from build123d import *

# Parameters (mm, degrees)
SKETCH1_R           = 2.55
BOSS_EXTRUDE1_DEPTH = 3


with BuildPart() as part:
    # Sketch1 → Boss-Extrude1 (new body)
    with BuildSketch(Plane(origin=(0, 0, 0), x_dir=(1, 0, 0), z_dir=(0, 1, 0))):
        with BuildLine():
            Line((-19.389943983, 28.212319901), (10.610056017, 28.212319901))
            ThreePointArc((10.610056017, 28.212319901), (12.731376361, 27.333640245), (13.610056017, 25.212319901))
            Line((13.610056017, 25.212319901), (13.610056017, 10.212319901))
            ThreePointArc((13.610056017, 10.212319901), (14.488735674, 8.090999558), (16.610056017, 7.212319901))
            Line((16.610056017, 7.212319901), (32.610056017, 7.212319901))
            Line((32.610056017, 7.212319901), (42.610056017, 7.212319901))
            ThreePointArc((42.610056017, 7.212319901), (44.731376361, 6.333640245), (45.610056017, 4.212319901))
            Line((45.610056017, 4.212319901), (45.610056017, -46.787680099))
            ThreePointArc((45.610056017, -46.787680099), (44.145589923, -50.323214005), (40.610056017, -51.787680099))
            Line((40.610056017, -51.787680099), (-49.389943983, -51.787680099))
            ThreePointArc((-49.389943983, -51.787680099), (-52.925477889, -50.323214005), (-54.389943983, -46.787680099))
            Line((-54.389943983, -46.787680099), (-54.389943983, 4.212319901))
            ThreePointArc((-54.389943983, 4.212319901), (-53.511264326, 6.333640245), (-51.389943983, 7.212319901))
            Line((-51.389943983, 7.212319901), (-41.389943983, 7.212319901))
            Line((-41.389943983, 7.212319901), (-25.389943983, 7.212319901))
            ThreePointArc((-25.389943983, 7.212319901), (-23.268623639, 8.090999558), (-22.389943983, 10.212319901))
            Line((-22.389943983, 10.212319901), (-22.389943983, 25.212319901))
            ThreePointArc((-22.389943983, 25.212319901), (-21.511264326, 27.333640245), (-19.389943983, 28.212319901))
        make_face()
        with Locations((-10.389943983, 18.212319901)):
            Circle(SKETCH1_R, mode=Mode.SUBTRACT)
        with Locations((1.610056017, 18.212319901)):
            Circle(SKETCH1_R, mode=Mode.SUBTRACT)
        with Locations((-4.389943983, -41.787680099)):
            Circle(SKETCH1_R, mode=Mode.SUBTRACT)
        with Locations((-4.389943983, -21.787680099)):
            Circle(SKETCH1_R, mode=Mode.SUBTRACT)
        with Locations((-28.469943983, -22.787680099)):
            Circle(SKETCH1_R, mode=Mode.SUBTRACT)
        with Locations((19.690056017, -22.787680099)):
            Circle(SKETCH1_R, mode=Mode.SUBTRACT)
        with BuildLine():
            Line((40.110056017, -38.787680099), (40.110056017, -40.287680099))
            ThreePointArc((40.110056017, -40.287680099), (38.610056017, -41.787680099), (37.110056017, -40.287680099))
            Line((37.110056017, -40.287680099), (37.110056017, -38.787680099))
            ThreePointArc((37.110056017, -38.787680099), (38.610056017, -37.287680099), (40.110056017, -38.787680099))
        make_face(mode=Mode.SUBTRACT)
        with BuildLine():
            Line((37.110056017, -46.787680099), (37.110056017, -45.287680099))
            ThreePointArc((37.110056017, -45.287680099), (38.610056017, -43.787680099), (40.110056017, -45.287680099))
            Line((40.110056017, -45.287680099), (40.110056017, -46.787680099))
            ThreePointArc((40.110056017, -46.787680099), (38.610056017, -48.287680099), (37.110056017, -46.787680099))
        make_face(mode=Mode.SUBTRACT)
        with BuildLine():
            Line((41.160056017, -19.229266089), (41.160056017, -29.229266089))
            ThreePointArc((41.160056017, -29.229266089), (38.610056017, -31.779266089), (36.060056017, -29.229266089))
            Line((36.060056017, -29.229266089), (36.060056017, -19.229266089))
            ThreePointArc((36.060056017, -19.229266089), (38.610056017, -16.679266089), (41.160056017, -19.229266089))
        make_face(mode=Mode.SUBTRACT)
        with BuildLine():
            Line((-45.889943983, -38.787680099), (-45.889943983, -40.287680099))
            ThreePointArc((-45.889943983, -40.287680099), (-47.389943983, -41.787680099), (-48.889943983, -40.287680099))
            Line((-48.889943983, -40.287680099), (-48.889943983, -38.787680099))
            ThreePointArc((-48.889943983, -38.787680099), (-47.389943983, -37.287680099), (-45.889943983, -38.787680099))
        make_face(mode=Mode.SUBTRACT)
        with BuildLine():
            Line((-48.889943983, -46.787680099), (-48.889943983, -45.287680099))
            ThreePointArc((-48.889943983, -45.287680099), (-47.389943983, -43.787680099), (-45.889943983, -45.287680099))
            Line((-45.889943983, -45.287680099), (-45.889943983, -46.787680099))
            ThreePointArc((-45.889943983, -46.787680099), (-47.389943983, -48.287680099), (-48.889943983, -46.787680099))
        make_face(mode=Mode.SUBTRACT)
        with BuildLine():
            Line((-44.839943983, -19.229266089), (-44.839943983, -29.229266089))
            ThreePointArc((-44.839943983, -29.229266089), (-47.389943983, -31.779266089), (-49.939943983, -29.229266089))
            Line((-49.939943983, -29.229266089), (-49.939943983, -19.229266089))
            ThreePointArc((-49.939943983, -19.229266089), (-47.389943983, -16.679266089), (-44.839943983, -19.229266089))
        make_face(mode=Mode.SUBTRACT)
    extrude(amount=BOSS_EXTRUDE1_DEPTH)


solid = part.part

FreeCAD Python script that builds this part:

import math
import FreeCAD as App
import Part
import Sketcher
from FreeCAD import Vector

doc = App.newDocument("Part")
body = doc.addObject("PartDesign::Body", "Body")

# Sketch on XZ plane
sketch1 = body.newObject("Sketcher::SketchObject", "Sketch")
sketch1.AttachmentSupport = (doc.getObject("XZ_Plane"), [""])
sketch1.MapMode = "FlatFace"
sketch1.addGeometry(Part.LineSegment(Vector(10.6, -28.2, 0), Vector(-19.4, -28.2, 0)), False)
sketch1.addGeometry(Part.ArcOfCircle(Part.Circle(Vector(-19.4, -25.2, 0), Vector(0, 0, 1), 3), math.radians(180), math.radians(270)), False)
sketch1.addGeometry(Part.LineSegment(Vector(-22.4, -25.2, 0), Vector(-22.4, -10.2, 0)), False)
sketch1.addGeometry(Part.ArcOfCircle(Part.Circle(Vector(-25.4, -10.2, 0), Vector(0, 0, 1), 3), math.radians(0), math.radians(90)), False)
sketch1.addGeometry(Part.LineSegment(Vector(-25.4, -7.2, 0), Vector(-51.4, -7.2, 0)), False)
sketch1.addGeometry(Part.ArcOfCircle(Part.Circle(Vector(-51.4, -4.2, 0), Vector(0, 0, 1), 3), math.radians(180), math.radians(270)), False)
sketch1.addGeometry(Part.LineSegment(Vector(-54.4, -4.2, 0), Vector(-54.4, 46.8, 0)), False)
sketch1.addGeometry(Part.ArcOfCircle(Part.Circle(Vector(-49.4, 46.8, 0), Vector(0, 0, 1), 5), math.radians(90), math.radians(180)), False)
sketch1.addGeometry(Part.LineSegment(Vector(-49.4, 51.8, 0), Vector(40.6, 51.8, 0)), False)
sketch1.addGeometry(Part.ArcOfCircle(Part.Circle(Vector(40.6, 46.8, 0), Vector(0, 0, 1), 5), math.radians(0), math.radians(90)), False)
sketch1.addGeometry(Part.LineSegment(Vector(45.6, 46.8, 0), Vector(45.6, -4.2, 0)), False)
sketch1.addGeometry(Part.ArcOfCircle(Part.Circle(Vector(42.6, -4.2, 0), Vector(0, 0, 1), 3), math.radians(-90), math.radians(0)), False)
sketch1.addGeometry(Part.LineSegment(Vector(42.6, -7.2, 0), Vector(16.6, -7.2, 0)), False)
sketch1.addGeometry(Part.ArcOfCircle(Part.Circle(Vector(16.6, -10.2, 0), Vector(0, 0, 1), 3), math.radians(90), math.radians(180)), False)
sketch1.addGeometry(Part.LineSegment(Vector(13.6, -10.2, 0), Vector(13.6, -25.2, 0)), False)
sketch1.addGeometry(Part.ArcOfCircle(Part.Circle(Vector(10.6, -25.2, 0), Vector(0, 0, 1), 3), math.radians(-90), math.radians(0)), False)
sketch1.addGeometry(Part.LineSegment(Vector(37.1, 46.8, 0), Vector(37.1, 45.3, 0)), False)
sketch1.addGeometry(Part.ArcOfCircle(Part.Circle(Vector(38.6, 45.3, 0), Vector(0, 0, 1), 1.5), math.radians(180), math.radians(360)), False)
sketch1.addGeometry(Part.LineSegment(Vector(40.1, 45.3, 0), Vector(40.1, 46.8, 0)), False)
sketch1.addGeometry(Part.ArcOfCircle(Part.Circle(Vector(38.6, 46.8, 0), Vector(0, 0, 1), 1.5), math.radians(0), math.radians(180)), False)
sketch1.addGeometry(Part.LineSegment(Vector(40.1, 38.8, 0), Vector(40.1, 40.3, 0)), False)
sketch1.addGeometry(Part.ArcOfCircle(Part.Circle(Vector(38.6, 40.3, 0), Vector(0, 0, 1), 1.5), math.radians(0), math.radians(180)), False)
sketch1.addGeometry(Part.LineSegment(Vector(37.1, 40.3, 0), Vector(37.1, 38.8, 0)), False)
sketch1.addGeometry(Part.ArcOfCircle(Part.Circle(Vector(38.6, 38.8, 0), Vector(0, 0, 1), 1.5), math.radians(180), math.radians(360)), False)
sketch1.addGeometry(Part.LineSegment(Vector(41.2, 19.2, 0), Vector(41.2, 29.2, 0)), False)
sketch1.addGeometry(Part.ArcOfCircle(Part.Circle(Vector(38.6, 29.2, 0), Vector(0, 0, 1), 2.5), math.radians(0), math.radians(180)), False)
sketch1.addGeometry(Part.LineSegment(Vector(36.1, 29.2, 0), Vector(36.1, 19.2, 0)), False)
sketch1.addGeometry(Part.ArcOfCircle(Part.Circle(Vector(38.6, 19.2, 0), Vector(0, 0, 1), 2.5), math.radians(180), math.radians(360)), False)
sketch1.addGeometry(Part.Circle(Vector(19.7, 22.8, 0), Vector(0, 0, 1), 2.5), False)
sketch1.addGeometry(Part.Circle(Vector(-4.4, 41.8, 0), Vector(0, 0, 1), 2.5), False)
sketch1.addGeometry(Part.LineSegment(Vector(-48.9, 46.8, 0), Vector(-48.9, 45.3, 0)), False)
sketch1.addGeometry(Part.ArcOfCircle(Part.Circle(Vector(-47.4, 45.3, 0), Vector(0, 0, 1), 1.5), math.radians(180), math.radians(360)), False)
sketch1.addGeometry(Part.LineSegment(Vector(-45.9, 45.3, 0), Vector(-45.9, 46.8, 0)), False)
sketch1.addGeometry(Part.ArcOfCircle(Part.Circle(Vector(-47.4, 46.8, 0), Vector(0, 0, 1), 1.5), math.radians(0), math.radians(180)), False)
sketch1.addGeometry(Part.LineSegment(Vector(-45.9, 38.8, 0), Vector(-45.9, 40.3, 0)), False)
sketch1.addGeometry(Part.ArcOfCircle(Part.Circle(Vector(-47.4, 40.3, 0), Vector(0, 0, 1), 1.5), math.radians(0), math.radians(180)), False)
sketch1.addGeometry(Part.LineSegment(Vector(-48.9, 40.3, 0), Vector(-48.9, 38.8, 0)), False)
sketch1.addGeometry(Part.ArcOfCircle(Part.Circle(Vector(-47.4, 38.8, 0), Vector(0, 0, 1), 1.5), math.radians(180), math.radians(360)), False)
sketch1.addGeometry(Part.Circle(Vector(-4.4, 21.8, 0), Vector(0, 0, 1), 2.5), False)
sketch1.addGeometry(Part.Circle(Vector(-28.5, 22.8, 0), Vector(0, 0, 1), 2.5), False)
sketch1.addGeometry(Part.LineSegment(Vector(-44.8, 19.2, 0), Vector(-44.8, 29.2, 0)), False)
sketch1.addGeometry(Part.ArcOfCircle(Part.Circle(Vector(-47.4, 29.2, 0), Vector(0, 0, 1), 2.5), math.radians(0), math.radians(180)), False)
sketch1.addGeometry(Part.LineSegment(Vector(-49.9, 29.2, 0), Vector(-49.9, 19.2, 0)), False)
sketch1.addGeometry(Part.ArcOfCircle(Part.Circle(Vector(-47.4, 19.2, 0), Vector(0, 0, 1), 2.5), math.radians(180), math.radians(360)), False)
sketch1.addGeometry(Part.Circle(Vector(1.6, -18.2, 0), Vector(0, 0, 1), 2.5), False)
sketch1.addGeometry(Part.Circle(Vector(-10.4, -18.2, 0), Vector(0, 0, 1), 2.5), False)
sketch1.addConstraint(Sketcher.Constraint("Tangent", 0, 2, 1, 2))
sketch1.addConstraint(Sketcher.Constraint("Tangent", 1, 1, 2, 1))
sketch1.addConstraint(Sketcher.Constraint("Tangent", 2, 2, 3, 1))
sketch1.addConstraint(Sketcher.Constraint("Tangent", 3, 2, 4, 1))
sketch1.addConstraint(Sketcher.Constraint("Tangent", 4, 2, 5, 2))
sketch1.addConstraint(Sketcher.Constraint("Tangent", 5, 1, 6, 1))
sketch1.addConstraint(Sketcher.Constraint("Tangent", 6, 2, 7, 2))
sketch1.addConstraint(Sketcher.Constraint("Tangent", 7, 1, 8, 1))
sketch1.addConstraint(Sketcher.Constraint("Tangent", 8, 2, 9, 2))
sketch1.addConstraint(Sketcher.Constraint("Tangent", 9, 1, 10, 1))
sketch1.addConstraint(Sketcher.Constraint("Tangent", 10, 2, 11, 2))
sketch1.addConstraint(Sketcher.Constraint("Tangent", 11, 1, 12, 1))
sketch1.addConstraint(Sketcher.Constraint("Tangent", 12, 2, 13, 1))
sketch1.addConstraint(Sketcher.Constraint("Tangent", 13, 2, 14, 1))
sketch1.addConstraint(Sketcher.Constraint("Tangent", 14, 2, 15, 2))
sketch1.addConstraint(Sketcher.Constraint("Tangent", 15, 1, 0, 1))
sketch1.addConstraint(Sketcher.Constraint("Tangent", 16, 2, 17, 1))
sketch1.addConstraint(Sketcher.Constraint("Tangent", 17, 2, 18, 1))
sketch1.addConstraint(Sketcher.Constraint("Tangent", 18, 2, 19, 1))
sketch1.addConstraint(Sketcher.Constraint("Tangent", 19, 2, 16, 1))
sketch1.addConstraint(Sketcher.Constraint("Tangent", 20, 2, 21, 1))
sketch1.addConstraint(Sketcher.Constraint("Tangent", 21, 2, 22, 1))
sketch1.addConstraint(Sketcher.Constraint("Tangent", 22, 2, 23, 1))
sketch1.addConstraint(Sketcher.Constraint("Tangent", 23, 2, 20, 1))
sketch1.addConstraint(Sketcher.Constraint("Tangent", 24, 2, 25, 1))
sketch1.addConstraint(Sketcher.Constraint("Tangent", 25, 2, 26, 1))
sketch1.addConstraint(Sketcher.Constraint("Tangent", 26, 2, 27, 1))
sketch1.addConstraint(Sketcher.Constraint("Tangent", 27, 2, 24, 1))
sketch1.addConstraint(Sketcher.Constraint("Tangent", 30, 2, 31, 1))
sketch1.addConstraint(Sketcher.Constraint("Tangent", 31, 2, 32, 1))
sketch1.addConstraint(Sketcher.Constraint("Tangent", 32, 2, 33, 1))
sketch1.addConstraint(Sketcher.Constraint("Tangent", 33, 2, 30, 1))
sketch1.addConstraint(Sketcher.Constraint("Tangent", 34, 2, 35, 1))
sketch1.addConstraint(Sketcher.Constraint("Tangent", 35, 2, 36, 1))
sketch1.addConstraint(Sketcher.Constraint("Tangent", 36, 2, 37, 1))
sketch1.addConstraint(Sketcher.Constraint("Tangent", 37, 2, 34, 1))
sketch1.addConstraint(Sketcher.Constraint("Tangent", 40, 2, 41, 1))
sketch1.addConstraint(Sketcher.Constraint("Tangent", 41, 2, 42, 1))
sketch1.addConstraint(Sketcher.Constraint("Tangent", 42, 2, 43, 1))
sketch1.addConstraint(Sketcher.Constraint("Tangent", 43, 2, 40, 1))
sketch1.addConstraint(Sketcher.Constraint("Horizontal", 0))
sketch1.addConstraint(Sketcher.Constraint("Vertical", 2))
sketch1.addConstraint(Sketcher.Constraint("Horizontal", 4))
sketch1.addConstraint(Sketcher.Constraint("Vertical", 6))
sketch1.addConstraint(Sketcher.Constraint("Horizontal", 8))
sketch1.addConstraint(Sketcher.Constraint("Vertical", 10))
sketch1.addConstraint(Sketcher.Constraint("Horizontal", 12))
sketch1.addConstraint(Sketcher.Constraint("Vertical", 14))
sketch1.addConstraint(Sketcher.Constraint("Vertical", 16))
sketch1.addConstraint(Sketcher.Constraint("Vertical", 18))
sketch1.addConstraint(Sketcher.Constraint("Vertical", 20))
sketch1.addConstraint(Sketcher.Constraint("Vertical", 22))
sketch1.addConstraint(Sketcher.Constraint("Vertical", 24))
sketch1.addConstraint(Sketcher.Constraint("Vertical", 26))
sketch1.addConstraint(Sketcher.Constraint("Vertical", 30))
sketch1.addConstraint(Sketcher.Constraint("Vertical", 32))
sketch1.addConstraint(Sketcher.Constraint("Vertical", 34))
sketch1.addConstraint(Sketcher.Constraint("Vertical", 36))
sketch1.addConstraint(Sketcher.Constraint("Vertical", 40))
sketch1.addConstraint(Sketcher.Constraint("Vertical", 42))
sketch1.addConstraint(Sketcher.Constraint("Equal", 1, 3))
sketch1.addConstraint(Sketcher.Constraint("Equal", 3, 5))
sketch1.addConstraint(Sketcher.Constraint("Equal", 7, 9))
sketch1.addConstraint(Sketcher.Constraint("Equal", 5, 11))
sketch1.addConstraint(Sketcher.Constraint("Equal", 11, 13))
sketch1.addConstraint(Sketcher.Constraint("Equal", 13, 15))
sketch1.addConstraint(Sketcher.Constraint("Equal", 19, 21))
sketch1.addConstraint(Sketcher.Constraint("Equal", 27, 28))
sketch1.addConstraint(Sketcher.Constraint("Equal", 28, 29))
sketch1.addConstraint(Sketcher.Constraint("Equal", 23, 31))
sketch1.addConstraint(Sketcher.Constraint("Equal", 33, 35))
sketch1.addConstraint(Sketcher.Constraint("Equal", 29, 38))
sketch1.addConstraint(Sketcher.Constraint("Equal", 38, 39))
sketch1.addConstraint(Sketcher.Constraint("Equal", 39, 41))
sketch1.addConstraint(Sketcher.Constraint("Equal", 43, 44))
sketch1.addConstraint(Sketcher.Constraint("Equal", 44, 45))
sketch1.addConstraint(Sketcher.Constraint("Horizontal", 5, 3, 11, 3))
sketch1.addConstraint(Sketcher.Constraint("Horizontal", 9, 3, 19, 3))
sketch1.addConstraint(Sketcher.Constraint("Horizontal", 17, 3, 31, 3))
sketch1.addConstraint(Sketcher.Constraint("Horizontal", 19, 3, 33, 3))
sketch1.addConstraint(Sketcher.Constraint("Horizontal", 21, 3, 35, 3))
sketch1.addConstraint(Sketcher.Constraint("Horizontal", 23, 3, 37, 3))
sketch1.addConstraint(Sketcher.Constraint("Horizontal", 28, 3, 39, 3))
sketch1.addConstraint(Sketcher.Constraint("Horizontal", 25, 3, 41, 3))
sketch1.addConstraint(Sketcher.Constraint("Horizontal", 27, 3, 43, 3))
sketch1.addConstraint(Sketcher.Constraint("Horizontal", 44, 3, 45, 3))
sketch1.addConstraint(Sketcher.Constraint("Vertical", 19, 3, 21, 3))
sketch1.addConstraint(Sketcher.Constraint("Vertical", 23, 3, 25, 3))
sketch1.addConstraint(Sketcher.Constraint("Vertical", 33, 3, 35, 3))
sketch1.addConstraint(Sketcher.Constraint("Vertical", 29, 3, 38, 3))
sketch1.addConstraint(Sketcher.Constraint("Vertical", 37, 3, 41, 3))
sketch1.addConstraint(Sketcher.Constraint("Equal", 4, 12))
sketch1.addConstraint(Sketcher.Constraint("Equal", 18, 20))
sketch1.addConstraint(Sketcher.Constraint("Radius", 1, 3.0))
sketch1.addConstraint(Sketcher.Constraint("Radius", 7, 5.0))
sketch1.addConstraint(Sketcher.Constraint("Diameter", 28, 5.1))
sketch1.addConstraint(Sketcher.Constraint("Radius", 17, 1.5))
sketch1.addConstraint(Sketcher.Constraint("DistanceX", 0, 2, 0, 1, 30.0))
sketch1.addConstraint(Sketcher.Constraint("DistanceX", 4, 2, 4, 1, 26.0))
sketch1.addConstraint(Sketcher.Constraint("DistanceY", 2, 1, 2, 2, 15.0))
sketch1.addConstraint(Sketcher.Constraint("DistanceY", 6, 1, 6, 2, 51.0))
sketch1.addConstraint(Sketcher.Constraint("DistanceY", 24, 1, 24, 2, 10.0))
sketch1.addConstraint(Sketcher.Constraint("DistanceY", 16, 2, 16, 1, 1.5))
sketch1.addConstraint(Sketcher.Constraint("DistanceY", 1, 3, -1, 1, 25.21232))
sketch1.addConstraint(Sketcher.Constraint("DistanceY", -1, 1, 21, 3, 40.28768))
sketch1.addConstraint(Sketcher.Constraint("DistanceY", -1, 1, 28, 3, 22.78768))
sketch1.addConstraint(Sketcher.Constraint("DistanceY", -1, 1, 29, 3, 41.78768))
sketch1.addConstraint(Sketcher.Constraint("DistanceY", -1, 1, 38, 3, 21.78768))
sketch1.addConstraint(Sketcher.Constraint("DistanceY", 44, 3, -1, 1, 18.21232))
sketch1.addConstraint(Sketcher.Constraint("DistanceX", 1, 3, -1, 1, 19.389944))
sketch1.addConstraint(Sketcher.Constraint("DistanceX", -1, 1, 17, 3, 38.610056))
sketch1.addConstraint(Sketcher.Constraint("DistanceY", -1, 1, 25, 3, 29.229266))
sketch1.addConstraint(Sketcher.Constraint("DistanceX", -1, 1, 28, 3, 19.690056))
sketch1.addConstraint(Sketcher.Constraint("DistanceX", 29, 3, -1, 1, 4.389944))
sketch1.addConstraint(Sketcher.Constraint("DistanceX", 31, 3, -1, 1, 47.389944))
sketch1.addConstraint(Sketcher.Constraint("DistanceX", 39, 3, -1, 1, 28.469944))
sketch1.addConstraint(Sketcher.Constraint("DistanceX", -1, 1, 44, 3, 1.610056))
sketch1.addConstraint(Sketcher.Constraint("DistanceX", 45, 3, -1, 1, 10.389944))
pad1 = body.newObject("PartDesign::Pad", "Pad")
pad1.Profile = sketch1
pad1.Length = 3
pad1.Reversed = True

doc.recompute()
